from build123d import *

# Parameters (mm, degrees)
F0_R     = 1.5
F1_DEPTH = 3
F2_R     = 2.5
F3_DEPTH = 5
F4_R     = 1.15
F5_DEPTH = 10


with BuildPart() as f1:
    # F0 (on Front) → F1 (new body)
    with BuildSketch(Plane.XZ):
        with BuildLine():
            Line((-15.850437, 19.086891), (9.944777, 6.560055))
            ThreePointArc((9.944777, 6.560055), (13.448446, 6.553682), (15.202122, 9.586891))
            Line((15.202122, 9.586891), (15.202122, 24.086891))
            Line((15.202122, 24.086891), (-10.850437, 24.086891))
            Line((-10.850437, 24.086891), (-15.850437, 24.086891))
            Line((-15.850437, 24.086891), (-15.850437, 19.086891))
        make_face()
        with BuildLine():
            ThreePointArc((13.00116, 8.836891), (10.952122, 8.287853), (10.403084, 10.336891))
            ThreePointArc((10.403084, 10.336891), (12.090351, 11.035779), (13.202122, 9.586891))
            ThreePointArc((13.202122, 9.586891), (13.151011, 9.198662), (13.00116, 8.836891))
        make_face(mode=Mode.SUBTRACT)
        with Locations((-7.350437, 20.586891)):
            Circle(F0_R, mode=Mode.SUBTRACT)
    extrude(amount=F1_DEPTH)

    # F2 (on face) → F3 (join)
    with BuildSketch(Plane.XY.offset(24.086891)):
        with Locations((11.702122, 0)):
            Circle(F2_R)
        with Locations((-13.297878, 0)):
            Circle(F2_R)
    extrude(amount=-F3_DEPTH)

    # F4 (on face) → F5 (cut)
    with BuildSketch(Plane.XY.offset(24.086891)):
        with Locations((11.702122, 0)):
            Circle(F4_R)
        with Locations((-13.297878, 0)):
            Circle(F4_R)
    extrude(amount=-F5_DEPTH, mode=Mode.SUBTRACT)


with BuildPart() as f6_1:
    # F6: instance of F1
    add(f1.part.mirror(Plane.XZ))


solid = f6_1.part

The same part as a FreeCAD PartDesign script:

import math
import FreeCAD as App
import Part
import Sketcher

V = App.Vector
Q = App.Units.Quantity

doc = App.newDocument("Part")
body = doc.addObject("PartDesign::Body", "Body")

sketch1 = body.newObject("Sketcher::SketchObject", "Sketch")
sketch1.AttachmentSupport = (doc.getObject("XZ_Plane"), [""])
sketch1.MapMode = "FlatFace"
sketch1.addGeometry([
    Part.LineSegment(V(-15.850437, 19.086891, 0), V(9.944777, 6.560055, 0)),
    Part.ArcOfCircle(Part.Circle(V(11.702123, 9.58689, 0), V(0, 0, 1), 3.499999), math.radians(-120.138965), math.radians(0.000021)),
    Part.LineSegment(V(15.202122, 9.586891, 0), V(15.202122, 24.086891, 0)),
    Part.LineSegment(V(15.202122, 24.086891, 0), V(-15.850437, 24.086891, 0)),
    Part.LineSegment(V(-15.850437, 24.086891, 0), V(-15.850437, 19.086891, 0)),
    Part.ArcOfCircle(Part.Circle(V(11.702134, 9.586888, 0), V(0, 0, 1), 1.499988), math.radians(-30.000127), math.radians(0.000112)),
    Part.ArcOfCircle(Part.Circle(V(11.702122, 9.586891, 0), V(0, 0, 1), 1.5), math.radians(149.999998), math.radians(329.999998)),
    Part.ArcOfCircle(Part.Circle(V(11.702122, 9.58689, 0), V(0, 0, 1), 1.5), math.radians(0.000028), math.radians(149.999971)),
    Part.Circle(V(-7.350437, 20.586891, 0), V(0, 0, 1), 1.5),
], False)
sketch1.addConstraint([
    Sketcher.Constraint("Coincident", 0, 2, 1, 1),
    Sketcher.Constraint("Tangent", 1, 2, 2, 1),
    Sketcher.Constraint("Coincident", 2, 2, 3, 1),
    Sketcher.Constraint("Coincident", 3, 2, 4, 1),
    Sketcher.Constraint("Coincident", 4, 2, 0, 1),
    Sketcher.Constraint("Coincident", 5, 1, 6, 2),
    Sketcher.Constraint("Tangent", 6, 1, 7, 2),
    Sketcher.Constraint("Tangent", 7, 1, 5, 2),
    Sketcher.Constraint("Vertical", 2),
    Sketcher.Constraint("Horizontal", 3),
    Sketcher.Constraint("Vertical", 4),
    Sketcher.Constraint("Coincident", 6, 3, 1, 3),
    Sketcher.Constraint("Equal", 6, 7),
    Sketcher.Constraint("Equal", 7, 8),
    Sketcher.Constraint("Horizontal", 1, 2, 7, 1),
    Sketcher.Constraint("Diameter", 8, Q("3 mm")),
    Sketcher.Constraint("Radius", 1, Q("3.499999 mm")),
    Sketcher.Constraint("DistanceY", 4, 2, 4, 1, Q("5 mm")),
    Sketcher.Constraint("DistanceY", 2, 1, 2, 2, Q("14.5 mm")),
    Sketcher.Constraint("DistanceY", 6, 3, 8, 3, Q("11 mm")),
    Sketcher.Constraint("DistanceX", 3, 2, 8, 3, Q("8.5 mm")),
    Sketcher.Constraint("DistanceY", 5, 1, 6, 1, Q("1.5 mm")),
    Sketcher.Constraint("DistanceY", 5, 1, 1, 3, Q("0.749999 mm")),
    Sketcher.Constraint("DistanceX", 3, 2, 3, 1, Q("31.052559 mm")),
    Sketcher.Constraint("Distance", 0, Q("28.67603 mm")),
    Sketcher.Constraint("DistanceY", -1, 1, 1, 3, Q("9.58689 mm")),
    Sketcher.Constraint("DistanceX", -1, 1, 6, 3, Q("11.702122 mm")),
])
pad1 = body.newObject("PartDesign::Pad", "Pad")
pad1.Profile = sketch1
pad1.Length = 3

sketch2 = body.newObject("Sketcher::SketchObject", "Sketch001")
sketch2.AttachmentSupport = (doc.getObject("XY_Plane"), [""])
sketch2.MapMode = "FlatFace"
sketch2.AttachmentOffset = App.Placement(V(0, 0, 24.086891), App.Rotation())
sketch2.addGeometry([
    Part.Circle(V(11.702122, 0, 0), V(0, 0, 1), 2.5),
    Part.Circle(V(-13.297878, 0, 0), V(0, 0, 1), 2.5),
], False)
sketch2.addConstraint([
    Sketcher.Constraint("Equal", 0, 1),
    Sketcher.Constraint("PointOnObject", 0, 3, -1),
    Sketcher.Constraint("PointOnObject", 1, 3, -1),
    Sketcher.Constraint("Diameter", 0, Q("5 mm")),
    Sketcher.Constraint("DistanceX", 1, 3, 0, 3, Q("25 mm")),
    Sketcher.Constraint("DistanceX", -1, 1, 0, 3, Q("11.702122 mm")),
])
pad2 = body.newObject("PartDesign::Pad", "Pad001")
pad2.Profile = sketch2
pad2.Length = 5
pad2.Reversed = True

sketch3 = body.newObject("Sketcher::SketchObject", "Sketch002")
sketch3.AttachmentSupport = (doc.getObject("XY_Plane"), [""])
sketch3.MapMode = "FlatFace"
sketch3.AttachmentOffset = App.Placement(V(0, 0, 24.086891), App.Rotation())
sketch3.addGeometry([
    Part.Circle(V(11.702122, 0, 0), V(0, 0, 1), 1.15),
    Part.Circle(V(-13.297878, 0, 0), V(0, 0, 1), 1.15),
], False)
sketch3.addConstraint([
    Sketcher.Constraint("Equal", 0, 1),
    Sketcher.Constraint("PointOnObject", 0, 3, -1),
    Sketcher.Constraint("PointOnObject", 1, 3, -1),
    Sketcher.Constraint("Diameter", 0, Q("2.3 mm")),
    Sketcher.Constraint("DistanceX", 1, 3, 0, 3, Q("25 mm")),
    Sketcher.Constraint("DistanceX", -1, 1, 0, 3, Q("11.702122 mm")),
])
pocket1 = body.newObject("PartDesign::Pocket", "Pocket")
pocket1.Profile = sketch3
pocket1.Length = 10
body2 = doc.addObject("PartDesign::Body", "Body001")
doc.recompute()

mirroring = doc.addObject("Part::Mirroring", "Mirroring")
mirroring.Source = body
mirroring.Base = V(0, 0, 0)
mirroring.Normal = V(0, -1, 0)
body2.BaseFeature = mirroring
doc.recompute()
body.Visibility = False
mirroring.Visibility = False

doc.recompute()
